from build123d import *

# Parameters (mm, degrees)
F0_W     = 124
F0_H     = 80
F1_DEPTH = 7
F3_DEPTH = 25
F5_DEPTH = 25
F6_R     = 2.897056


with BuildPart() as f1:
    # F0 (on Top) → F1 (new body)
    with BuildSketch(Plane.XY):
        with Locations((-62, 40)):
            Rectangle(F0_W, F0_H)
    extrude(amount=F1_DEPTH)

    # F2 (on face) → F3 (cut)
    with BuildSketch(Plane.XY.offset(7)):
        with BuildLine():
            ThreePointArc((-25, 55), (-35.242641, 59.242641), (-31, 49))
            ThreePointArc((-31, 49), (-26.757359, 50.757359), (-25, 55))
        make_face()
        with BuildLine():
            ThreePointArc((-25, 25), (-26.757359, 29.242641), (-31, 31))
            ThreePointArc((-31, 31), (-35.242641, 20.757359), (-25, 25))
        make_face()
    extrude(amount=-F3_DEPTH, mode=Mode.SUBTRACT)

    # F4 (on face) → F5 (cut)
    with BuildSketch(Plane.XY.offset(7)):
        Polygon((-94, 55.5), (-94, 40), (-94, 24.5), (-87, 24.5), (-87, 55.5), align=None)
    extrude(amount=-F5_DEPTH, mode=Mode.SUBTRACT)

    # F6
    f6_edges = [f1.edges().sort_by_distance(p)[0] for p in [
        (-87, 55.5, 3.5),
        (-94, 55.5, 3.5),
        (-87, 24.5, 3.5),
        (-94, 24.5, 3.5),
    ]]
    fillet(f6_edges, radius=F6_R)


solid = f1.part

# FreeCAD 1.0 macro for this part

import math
import FreeCAD as App
import Part
import Sketcher

V = App.Vector
Q = App.Units.Quantity


def edges_at(feature, points):
    """Names of the edges that pass closest to the given points."""
    edges = feature.Shape.Edges
    near = lambda p: min(range(len(edges)), key=lambda i: edges[i].distToShape(Part.Vertex(*p))[0])
    return sorted({f"Edge{near(p) + 1}" for p in points})

doc = App.newDocument("Part")
params = doc.addObject("Spreadsheet::Sheet", "Params")
for row, (alias, value) in enumerate([
    ("sketch1_width", "124 mm"),
    ("sketch1_height", "80 mm"),
    ("pad1_length", "7 mm"),
    ("sketch2_radius", "6 mm"),
    ("pocket1_length", "25 mm"),
    ("sketch3_width", "7 mm"),
    ("sketch3_height", "31 mm"),
    ("pocket2_length", "25 mm"),
    ("fillet_radius", "2.897056 mm"),
], start=1):
    params.set(f"A{row}", alias)
    params.set(f"B{row}", "=" + value)
    params.setAlias(f"B{row}", alias)

body = doc.addObject("PartDesign::Body", "Body")

# Sketch on XY plane
sketch1 = body.newObject("Sketcher::SketchObject", "Sketch")
sketch1.AttachmentSupport = (doc.getObject("XY_Plane"), [""])
sketch1.MapMode = "FlatFace"
sketch1.addGeometry([
    Part.LineSegment(V(-124, 80, 0), V(-124, 0, 0)),
    Part.LineSegment(V(-124, 0, 0), V(0, 0, 0)),
    Part.LineSegment(V(0, 0, 0), V(0, 80, 0)),
    Part.LineSegment(V(0, 80, 0), V(-124, 80, 0)),
], False)
sketch1.addConstraint([
    Sketcher.Constraint("Coincident", 0, 2, 1, 1),
    Sketcher.Constraint("Coincident", 1, 2, 2, 1),
    Sketcher.Constraint("Coincident", 2, 2, 3, 1),
    Sketcher.Constraint("Coincident", 3, 2, 0, 1),
    Sketcher.Constraint("Vertical", 0),
    Sketcher.Constraint("Horizontal", 1),
    Sketcher.Constraint("Vertical", 2),
    Sketcher.Constraint("Horizontal", 3),
    Sketcher.Constraint("Coincident", 1, 2, -1, 1),
    Sketcher.Constraint("DistanceX", 1, 1, 1, 2, Q("124 mm")),
    Sketcher.Constraint("DistanceY", 0, 2, 0, 1, Q("80 mm")),
])
sketch1.setExpression("Constraints[9]", "Params.sketch1_width")
sketch1.setExpression("Constraints[10]", "Params.sketch1_height")
pad1 = body.newObject("PartDesign::Pad", "Pad")
pad1.Profile = sketch1
pad1.setExpression("Length", "Params.pad1_length")

# Sketch on XY plane
sketch2 = body.newObject("Sketcher::SketchObject", "Sketch001")
sketch2.AttachmentSupport = (doc.getObject("XY_Plane"), [""])
sketch2.MapMode = "FlatFace"
sketch2.AttachmentOffset = App.Placement(V(0, 0, 7), App.Rotation())
sketch2.addGeometry([
    Part.ArcOfCircle(Part.Circle(V(-31, 55, 0), V(0, 0, 1), 6), math.radians(-0.000002), math.radians(270.000002)),
    Part.ArcOfCircle(Part.Circle(V(-30.999999, 54.999999, 0), V(0, 0, 1), 5.999999), math.radians(-90.00001), math.radians(0.00001)),
    Part.ArcOfCircle(Part.Circle(V(-30.999999, 25.000001, 0), V(0, 0, 1), 5.999999), math.radians(-0.00001), math.radians(90.00001)),
    Part.ArcOfCircle(Part.Circle(V(-31, 25, 0), V(0, 0, 1), 6), math.radians(89.999998), math.radians(360.000002)),
], False)
sketch2.addConstraint([
    Sketcher.Constraint("Tangent", 0, 1, 1, 2),
    Sketcher.Constraint("Coincident", 1, 1, 0, 2),
    Sketcher.Constraint("Tangent", 2, 1, 3, 2),
    Sketcher.Constraint("Coincident", 3, 1, 2, 2),
    Sketcher.Constraint("Equal", 1, 2),
    Sketcher.Constraint("Horizontal", 1, 3, 0, 1),
    Sketcher.Constraint("Horizontal", 3, 3, 2, 1),
    Sketcher.Constraint("Vertical", 1, 3, 2, 3),
    Sketcher.Constraint("Vertical", 3, 3, 1, 1),
    Sketcher.Constraint("Vertical", 1, 1, 3, 1),
    Sketcher.Constraint("Radius", 0, Q("6 mm")),
    Sketcher.Constraint("DistanceX", 0, 3, -1, 1, Q("31 mm")),
    Sketcher.Constraint("DistanceY", -1, 1, 0, 3, Q("55 mm")),
    Sketcher.Constraint("DistanceY", -1, 1, 2, 3, Q("25.000001 mm")),
])
sketch2.setExpression("Constraints[10]", "Params.sketch2_radius")
pocket1 = body.newObject("PartDesign::Pocket", "Pocket")
pocket1.Profile = sketch2
pocket1.setExpression("Length", "Params.pocket1_length")

# Sketch on XY plane
sketch3 = body.newObject("Sketcher::SketchObject", "Sketch002")
sketch3.AttachmentSupport = (doc.getObject("XY_Plane"), [""])
sketch3.MapMode = "FlatFace"
sketch3.AttachmentOffset = App.Placement(V(0, 0, 7), App.Rotation())
sketch3.addGeometry([
    Part.LineSegment(V(-94, 55.5, 0), V(-94, 24.5, 0)),
    Part.LineSegment(V(-94, 24.5, 0), V(-87, 24.5, 0)),
    Part.LineSegment(V(-87, 24.5, 0), V(-87, 55.5, 0)),
    Part.LineSegment(V(-87, 55.5, 0), V(-94, 55.5, 0)),
], False)
sketch3.addConstraint([
    Sketcher.Constraint("Coincident", 0, 2, 1, 1),
    Sketcher.Constraint("Coincident", 1, 2, 2, 1),
    Sketcher.Constraint("Coincident", 2, 2, 3, 1),
    Sketcher.Constraint("Coincident", 3, 2, 0, 1),
    Sketcher.Constraint("Vertical", 0),
    Sketcher.Constraint("Horizontal", 1),
    Sketcher.Constraint("Vertical", 2),
    Sketcher.Constraint("Horizontal", 3),
    Sketcher.Constraint("DistanceX", 1, 1, 1, 2, Q("7 mm")),
    Sketcher.Constraint("DistanceY", 0, 2, 0, 1, Q("31 mm")),
    Sketcher.Constraint("DistanceX", 0, 2, -1, 1, Q("94 mm")),
    Sketcher.Constraint("DistanceY", -1, 1, 0, 2, Q("24.5 mm")),
])
sketch3.setExpression("Constraints[8]", "Params.sketch3_width")
sketch3.setExpression("Constraints[9]", "Params.sketch3_height")
pocket2 = body.newObject("PartDesign::Pocket", "Pocket001")
pocket2.Profile = sketch3
pocket2.setExpression("Length", "Params.pocket2_length")
doc.recompute()

fillet = body.newObject("PartDesign::Fillet", "Fillet")
fillet.Base = (pocket2, edges_at(pocket2, [
    (-87, 55.5, 3.5),
    (-94, 55.5, 3.5),
    (-87, 24.5, 3.5),
    (-94, 24.5, 3.5),
]))
fillet.setExpression("Radius", "Params.fillet_radius")

doc.recompute()
